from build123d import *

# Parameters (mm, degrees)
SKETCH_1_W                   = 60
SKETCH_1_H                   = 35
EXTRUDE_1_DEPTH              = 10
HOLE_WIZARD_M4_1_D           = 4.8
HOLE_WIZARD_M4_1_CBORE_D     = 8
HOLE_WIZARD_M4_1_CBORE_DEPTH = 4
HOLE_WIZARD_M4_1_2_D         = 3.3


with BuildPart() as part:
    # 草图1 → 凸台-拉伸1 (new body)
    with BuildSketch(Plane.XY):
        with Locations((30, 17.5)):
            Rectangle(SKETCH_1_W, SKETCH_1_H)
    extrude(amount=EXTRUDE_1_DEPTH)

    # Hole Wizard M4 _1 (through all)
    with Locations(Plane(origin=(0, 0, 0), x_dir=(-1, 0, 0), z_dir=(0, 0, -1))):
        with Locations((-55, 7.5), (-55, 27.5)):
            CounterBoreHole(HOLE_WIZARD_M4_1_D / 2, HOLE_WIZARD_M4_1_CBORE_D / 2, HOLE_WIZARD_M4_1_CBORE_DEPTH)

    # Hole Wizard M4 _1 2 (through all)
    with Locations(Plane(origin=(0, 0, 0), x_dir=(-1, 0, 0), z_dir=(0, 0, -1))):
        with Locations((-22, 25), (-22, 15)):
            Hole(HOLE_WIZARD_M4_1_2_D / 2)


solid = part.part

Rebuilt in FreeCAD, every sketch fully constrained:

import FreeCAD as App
import Part
import Sketcher
from FreeCAD import Vector


def add_polygon(sketch, points):
    """Adds a closed chain of lines whose ends are joined by coincident constraints."""
    first, n = sketch.GeometryCount, len(points)
    for a, b in zip(points, points[1:] + points[:1]):
        sketch.addGeometry(Part.LineSegment(App.Vector(*a, 0), App.Vector(*b, 0)), False)
    for i in range(n):
        sketch.addConstraint(Sketcher.Constraint("Coincident", first + i, 2, first + (i + 1) % n, 1))

doc = App.newDocument("Part")
body = doc.addObject("PartDesign::Body", "Body")

sketch1 = body.newObject("Sketcher::SketchObject", "Sketch")
sketch1.AttachmentSupport = (doc.getObject("XY_Plane"), [""])
sketch1.MapMode = "FlatFace"
add_polygon(sketch1, [(0, 35), (0, 0), (60, 0), (60, 35)])
sketch1.addConstraint(Sketcher.Constraint("Vertical", 0))
sketch1.addConstraint(Sketcher.Constraint("Horizontal", 1))
sketch1.addConstraint(Sketcher.Constraint("Vertical", 2))
sketch1.addConstraint(Sketcher.Constraint("Horizontal", 3))
sketch1.addConstraint(Sketcher.Constraint("Coincident", 0, 2, -1, 1))
sketch1.addConstraint(Sketcher.Constraint("DistanceX", 1, 1, 1, 2, 60.0))
sketch1.addConstraint(Sketcher.Constraint("DistanceY", 0, 2, 0, 1, 35.0))
pad1 = body.newObject("PartDesign::Pad", "Pad")
pad1.Profile = sketch1
pad1.Length = 10

sketch2 = body.newObject("Sketcher::SketchObject", "Sketch001")
sketch2.AttachmentSupport = (doc.getObject("XY_Plane"), [""])
sketch2.MapMode = "FlatFace"
sketch2.addGeometry(Part.Circle(Vector(55, 7.5, 0), Vector(0, 0, 1), 2.4), False)
sketch2.addGeometry(Part.Circle(Vector(55, 27.5, 0), Vector(0, 0, 1), 2.4), False)
sketch2.addConstraint(Sketcher.Constraint("Equal", 0, 1))
sketch2.addConstraint(Sketcher.Constraint("Vertical", 0, 3, 1, 3))
sketch2.addConstraint(Sketcher.Constraint("Diameter", 0, 4.8))
sketch2.addConstraint(Sketcher.Constraint("DistanceX", -1, 1, 0, 3, 55.0))
sketch2.addConstraint(Sketcher.Constraint("DistanceY", 0, 3, 1, 3, 20.0))
sketch2.addConstraint(Sketcher.Constraint("DistanceY", -1, 1, 0, 3, 7.5))
doc.recompute()
hole = body.newObject("PartDesign::Hole", "Hole")
hole.Profile = sketch2
hole.ThreadType = "None"
hole.Diameter = 4.8
hole.DepthType = "ThroughAll"
hole.HoleCutType = "Counterbore"
hole.HoleCutDiameter = 8
hole.HoleCutDepth = 4
hole.Reversed = True

sketch3 = body.newObject("Sketcher::SketchObject", "Sketch002")
sketch3.AttachmentSupport = (doc.getObject("XY_Plane"), [""])
sketch3.MapMode = "FlatFace"
sketch3.addGeometry(Part.Circle(Vector(22, 25, 0), Vector(0, 0, 1), 1.6), False)
sketch3.addGeometry(Part.Circle(Vector(22, 15, 0), Vector(0, 0, 1), 1.6), False)
sketch3.addConstraint(Sketcher.Constraint("Equal", 0, 1))
sketch3.addConstraint(Sketcher.Constraint("Vertical", 0, 3, 1, 3))
sketch3.addConstraint(Sketcher.Constraint("Diameter", 0, 3.3))
sketch3.addConstraint(Sketcher.Constraint("DistanceX", -1, 1, 0, 3, 22.0))
sketch3.addConstraint(Sketcher.Constraint("DistanceY", -1, 1, 0, 3, 25.0))
sketch3.addConstraint(Sketcher.Constraint("DistanceY", -1, 1, 1, 3, 15.0))
doc.recompute()
hole2 = body.newObject("PartDesign::Hole", "Hole001")
hole2.Profile = sketch3
hole2.ThreadType = "None"
hole2.Diameter = 3.3
hole2.DepthType = "ThroughAll"
hole2.Reversed = True

doc.recompute()
